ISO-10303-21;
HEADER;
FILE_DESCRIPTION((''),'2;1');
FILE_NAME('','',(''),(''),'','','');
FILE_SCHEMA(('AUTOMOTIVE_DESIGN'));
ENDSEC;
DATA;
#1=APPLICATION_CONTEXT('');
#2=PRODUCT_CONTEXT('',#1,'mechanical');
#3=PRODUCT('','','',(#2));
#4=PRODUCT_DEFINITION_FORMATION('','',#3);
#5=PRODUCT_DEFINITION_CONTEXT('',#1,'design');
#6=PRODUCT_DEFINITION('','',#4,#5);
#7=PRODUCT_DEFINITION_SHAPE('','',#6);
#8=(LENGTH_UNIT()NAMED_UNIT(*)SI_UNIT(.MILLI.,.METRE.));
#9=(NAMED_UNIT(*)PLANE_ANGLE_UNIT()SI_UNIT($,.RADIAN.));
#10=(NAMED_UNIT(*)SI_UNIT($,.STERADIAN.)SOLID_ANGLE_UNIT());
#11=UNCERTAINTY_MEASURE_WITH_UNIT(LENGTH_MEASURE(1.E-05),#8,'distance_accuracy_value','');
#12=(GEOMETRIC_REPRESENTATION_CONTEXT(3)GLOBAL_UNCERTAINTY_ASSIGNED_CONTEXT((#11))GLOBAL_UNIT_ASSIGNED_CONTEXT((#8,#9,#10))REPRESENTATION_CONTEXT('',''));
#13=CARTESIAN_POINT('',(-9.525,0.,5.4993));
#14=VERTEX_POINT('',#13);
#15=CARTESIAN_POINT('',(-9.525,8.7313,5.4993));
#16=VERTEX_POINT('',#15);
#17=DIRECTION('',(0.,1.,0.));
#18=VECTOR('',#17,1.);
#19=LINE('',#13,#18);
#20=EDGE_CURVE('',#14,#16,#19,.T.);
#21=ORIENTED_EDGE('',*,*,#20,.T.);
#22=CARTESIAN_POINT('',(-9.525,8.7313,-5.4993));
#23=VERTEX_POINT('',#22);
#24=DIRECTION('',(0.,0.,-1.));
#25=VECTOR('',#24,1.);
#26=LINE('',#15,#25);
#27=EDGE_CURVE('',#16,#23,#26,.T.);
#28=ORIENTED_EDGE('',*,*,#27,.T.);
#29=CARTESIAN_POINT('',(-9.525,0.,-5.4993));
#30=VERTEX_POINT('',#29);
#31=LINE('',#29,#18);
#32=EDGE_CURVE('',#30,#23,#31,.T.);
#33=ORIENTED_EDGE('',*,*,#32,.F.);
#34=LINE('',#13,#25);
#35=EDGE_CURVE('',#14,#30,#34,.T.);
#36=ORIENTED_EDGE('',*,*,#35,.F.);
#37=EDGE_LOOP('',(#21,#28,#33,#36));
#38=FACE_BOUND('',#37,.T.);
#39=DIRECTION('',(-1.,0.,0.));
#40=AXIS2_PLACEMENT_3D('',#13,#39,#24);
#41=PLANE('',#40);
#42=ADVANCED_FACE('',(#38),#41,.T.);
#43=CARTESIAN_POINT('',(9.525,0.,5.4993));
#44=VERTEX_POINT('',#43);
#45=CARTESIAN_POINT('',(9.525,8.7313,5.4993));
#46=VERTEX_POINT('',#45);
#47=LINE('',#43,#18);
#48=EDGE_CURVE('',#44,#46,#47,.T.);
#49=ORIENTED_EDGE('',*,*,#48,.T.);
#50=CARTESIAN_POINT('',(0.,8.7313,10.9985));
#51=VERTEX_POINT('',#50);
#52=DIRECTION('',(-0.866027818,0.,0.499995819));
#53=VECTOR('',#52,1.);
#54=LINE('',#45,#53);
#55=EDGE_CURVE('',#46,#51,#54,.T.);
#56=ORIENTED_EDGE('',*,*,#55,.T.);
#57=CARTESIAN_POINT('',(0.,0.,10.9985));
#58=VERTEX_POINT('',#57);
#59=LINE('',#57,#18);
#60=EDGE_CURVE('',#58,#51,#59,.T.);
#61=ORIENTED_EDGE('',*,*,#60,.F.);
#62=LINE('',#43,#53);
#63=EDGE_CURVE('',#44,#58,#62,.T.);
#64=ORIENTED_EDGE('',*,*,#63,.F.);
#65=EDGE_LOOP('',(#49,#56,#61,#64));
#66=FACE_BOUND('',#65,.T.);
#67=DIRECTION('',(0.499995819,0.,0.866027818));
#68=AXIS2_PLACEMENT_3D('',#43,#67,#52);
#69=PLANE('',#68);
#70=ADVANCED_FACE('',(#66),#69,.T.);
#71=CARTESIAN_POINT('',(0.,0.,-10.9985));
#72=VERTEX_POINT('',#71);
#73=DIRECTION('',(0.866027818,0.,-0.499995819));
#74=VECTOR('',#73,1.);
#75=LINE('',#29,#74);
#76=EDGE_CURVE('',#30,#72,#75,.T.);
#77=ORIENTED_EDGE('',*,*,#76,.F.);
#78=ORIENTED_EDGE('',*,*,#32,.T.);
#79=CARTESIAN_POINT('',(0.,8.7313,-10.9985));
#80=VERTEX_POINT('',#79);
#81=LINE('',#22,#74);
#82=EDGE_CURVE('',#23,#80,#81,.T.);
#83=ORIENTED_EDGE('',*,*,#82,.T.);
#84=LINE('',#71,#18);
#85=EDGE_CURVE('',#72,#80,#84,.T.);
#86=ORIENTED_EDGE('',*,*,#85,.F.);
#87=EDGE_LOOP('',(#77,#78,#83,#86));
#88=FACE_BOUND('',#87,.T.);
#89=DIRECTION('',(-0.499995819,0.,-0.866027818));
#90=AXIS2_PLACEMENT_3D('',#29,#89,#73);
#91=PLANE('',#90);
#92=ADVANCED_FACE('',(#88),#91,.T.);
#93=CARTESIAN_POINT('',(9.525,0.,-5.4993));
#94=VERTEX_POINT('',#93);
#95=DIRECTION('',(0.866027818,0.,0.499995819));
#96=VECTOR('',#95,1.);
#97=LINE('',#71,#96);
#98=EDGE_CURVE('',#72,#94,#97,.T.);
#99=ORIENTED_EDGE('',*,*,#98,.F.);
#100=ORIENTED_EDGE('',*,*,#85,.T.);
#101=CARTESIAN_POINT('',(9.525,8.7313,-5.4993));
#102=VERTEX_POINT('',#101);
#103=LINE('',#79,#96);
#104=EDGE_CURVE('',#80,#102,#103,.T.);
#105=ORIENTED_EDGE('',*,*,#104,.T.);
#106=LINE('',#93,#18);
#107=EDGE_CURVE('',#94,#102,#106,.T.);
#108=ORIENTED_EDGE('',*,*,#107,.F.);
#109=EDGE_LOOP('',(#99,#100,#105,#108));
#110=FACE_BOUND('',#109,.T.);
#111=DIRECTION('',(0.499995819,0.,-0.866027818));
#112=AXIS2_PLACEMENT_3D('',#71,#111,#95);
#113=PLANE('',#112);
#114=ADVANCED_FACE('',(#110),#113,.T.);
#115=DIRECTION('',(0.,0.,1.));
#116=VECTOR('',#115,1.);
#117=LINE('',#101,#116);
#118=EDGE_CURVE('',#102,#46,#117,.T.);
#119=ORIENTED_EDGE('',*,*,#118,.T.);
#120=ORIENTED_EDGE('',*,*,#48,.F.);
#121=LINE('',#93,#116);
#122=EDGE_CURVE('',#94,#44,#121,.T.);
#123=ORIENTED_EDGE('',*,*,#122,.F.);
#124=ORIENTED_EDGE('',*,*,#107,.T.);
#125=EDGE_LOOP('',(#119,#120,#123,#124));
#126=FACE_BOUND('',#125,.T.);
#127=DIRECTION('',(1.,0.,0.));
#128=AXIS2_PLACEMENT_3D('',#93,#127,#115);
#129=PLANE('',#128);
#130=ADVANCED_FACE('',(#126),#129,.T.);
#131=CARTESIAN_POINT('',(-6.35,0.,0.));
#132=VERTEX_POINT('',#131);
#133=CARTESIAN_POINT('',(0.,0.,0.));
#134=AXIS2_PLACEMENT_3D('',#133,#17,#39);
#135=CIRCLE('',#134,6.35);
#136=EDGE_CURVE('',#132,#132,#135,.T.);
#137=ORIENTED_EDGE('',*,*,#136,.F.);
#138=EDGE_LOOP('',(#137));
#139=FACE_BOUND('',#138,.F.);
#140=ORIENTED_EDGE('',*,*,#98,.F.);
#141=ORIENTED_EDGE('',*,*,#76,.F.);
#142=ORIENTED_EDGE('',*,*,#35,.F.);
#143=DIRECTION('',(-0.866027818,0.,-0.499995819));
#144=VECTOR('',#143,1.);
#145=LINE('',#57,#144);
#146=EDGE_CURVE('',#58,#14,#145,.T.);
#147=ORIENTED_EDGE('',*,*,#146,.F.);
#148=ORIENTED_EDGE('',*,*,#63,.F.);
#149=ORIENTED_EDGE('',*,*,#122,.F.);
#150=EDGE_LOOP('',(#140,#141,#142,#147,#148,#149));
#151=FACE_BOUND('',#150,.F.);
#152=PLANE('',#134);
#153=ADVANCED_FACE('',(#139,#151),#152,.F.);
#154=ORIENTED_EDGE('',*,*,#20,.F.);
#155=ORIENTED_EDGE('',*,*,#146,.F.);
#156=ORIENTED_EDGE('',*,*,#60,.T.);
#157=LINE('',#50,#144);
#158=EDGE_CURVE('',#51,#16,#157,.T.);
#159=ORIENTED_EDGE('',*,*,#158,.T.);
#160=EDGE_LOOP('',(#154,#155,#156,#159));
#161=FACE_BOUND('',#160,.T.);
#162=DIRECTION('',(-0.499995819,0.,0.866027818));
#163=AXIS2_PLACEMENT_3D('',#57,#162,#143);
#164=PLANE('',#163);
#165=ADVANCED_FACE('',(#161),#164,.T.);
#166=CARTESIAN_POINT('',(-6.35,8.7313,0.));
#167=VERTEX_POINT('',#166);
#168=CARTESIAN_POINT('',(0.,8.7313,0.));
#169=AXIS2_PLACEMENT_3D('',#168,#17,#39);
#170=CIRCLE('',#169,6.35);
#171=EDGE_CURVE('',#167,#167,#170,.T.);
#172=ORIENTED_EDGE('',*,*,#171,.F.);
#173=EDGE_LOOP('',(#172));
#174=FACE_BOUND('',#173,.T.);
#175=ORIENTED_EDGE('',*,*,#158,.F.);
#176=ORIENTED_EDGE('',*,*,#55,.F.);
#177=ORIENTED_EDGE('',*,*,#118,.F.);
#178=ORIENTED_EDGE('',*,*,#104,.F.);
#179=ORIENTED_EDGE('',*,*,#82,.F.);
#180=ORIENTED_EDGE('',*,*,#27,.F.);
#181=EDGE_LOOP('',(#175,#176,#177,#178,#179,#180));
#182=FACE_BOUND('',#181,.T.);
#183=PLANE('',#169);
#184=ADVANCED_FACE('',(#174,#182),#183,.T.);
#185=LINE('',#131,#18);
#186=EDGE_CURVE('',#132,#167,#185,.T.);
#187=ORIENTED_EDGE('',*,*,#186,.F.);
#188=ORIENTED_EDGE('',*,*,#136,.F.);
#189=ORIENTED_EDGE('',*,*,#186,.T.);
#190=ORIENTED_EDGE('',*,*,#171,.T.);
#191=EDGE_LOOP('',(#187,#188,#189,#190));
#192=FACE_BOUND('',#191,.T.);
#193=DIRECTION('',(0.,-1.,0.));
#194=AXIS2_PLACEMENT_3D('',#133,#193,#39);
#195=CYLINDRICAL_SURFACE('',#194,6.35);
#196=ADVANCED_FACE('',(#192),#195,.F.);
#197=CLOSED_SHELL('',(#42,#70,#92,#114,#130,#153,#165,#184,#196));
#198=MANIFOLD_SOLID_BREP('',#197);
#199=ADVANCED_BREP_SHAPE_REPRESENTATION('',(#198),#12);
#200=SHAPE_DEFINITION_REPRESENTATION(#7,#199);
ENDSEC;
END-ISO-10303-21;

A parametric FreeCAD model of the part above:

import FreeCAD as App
import Part
import Sketcher

V = App.Vector
Q = App.Units.Quantity

doc = App.newDocument("Part")
body = doc.addObject("PartDesign::Body", "Body")

sketch1 = doc.addObject("Sketcher::SketchObject", "Sketch")
body.addObject(sketch1)
sketch1.AttachmentSupport = (doc.XZ_Plane, [""])
sketch1.MapMode = "FlatFace"
sketch1.addGeometry([
    Part.LineSegment(V(0, -11, 0), V(-10, -5, 0)),
    Part.LineSegment(V(-10, -5, 0), V(-10, 5, 0)),
    Part.LineSegment(V(-10, 5, 0), V(0, 11, 0)),
    Part.LineSegment(V(0, 11, 0), V(10, 5, 0)),
    Part.LineSegment(V(10, 5, 0), V(10, -5, 0)),
    Part.LineSegment(V(10, -5, 0), V(0, -11, 0)),
    Part.Circle(V(0, 0, 0), V(0, 0, 1), 6),
], False)
sketch1.addConstraint([
    Sketcher.Constraint("Coincident", 0, 2, 1, 1),
    Sketcher.Constraint("Coincident", 1, 2, 2, 1),
    Sketcher.Constraint("Coincident", 2, 2, 3, 1),
    Sketcher.Constraint("Coincident", 3, 2, 4, 1),
    Sketcher.Constraint("Coincident", 4, 2, 5, 1),
    Sketcher.Constraint("Coincident", 5, 2, 0, 1),
    Sketcher.Constraint("Vertical", 1),
    Sketcher.Constraint("Vertical", 4),
    Sketcher.Constraint("Coincident", 6, 3, -1, 1),
    Sketcher.Constraint("Symmetric", 0, 2, 3, 2, -1, 1),
    Sketcher.Constraint("Symmetric", 2, 2, 5, 2, -1, 1),
    Sketcher.Constraint("PointOnObject", 2, 2, -2),
    Sketcher.Constraint("Parallel", 2, 5),
    Sketcher.Constraint("Horizontal", 1, 2, 3, 2),
    Sketcher.Constraint("Diameter", 6, Q("0.5 in")),
    Sketcher.Constraint("DistanceX", 1, 2, 3, 2, Q("0.75 in")),
    Sketcher.Constraint("Angle", 0, Q("150.0003 deg")),
    Sketcher.Constraint("DistanceY", -1, 1, 2, 2, Q("0.433 in")),
])
pad1 = doc.addObject("PartDesign::Pad", "Pad")
body.addObject(pad1)
pad1.Profile = sketch1
pad1.Length = Q("0.343752 in")
pad1.Reversed = True

doc.recompute()
